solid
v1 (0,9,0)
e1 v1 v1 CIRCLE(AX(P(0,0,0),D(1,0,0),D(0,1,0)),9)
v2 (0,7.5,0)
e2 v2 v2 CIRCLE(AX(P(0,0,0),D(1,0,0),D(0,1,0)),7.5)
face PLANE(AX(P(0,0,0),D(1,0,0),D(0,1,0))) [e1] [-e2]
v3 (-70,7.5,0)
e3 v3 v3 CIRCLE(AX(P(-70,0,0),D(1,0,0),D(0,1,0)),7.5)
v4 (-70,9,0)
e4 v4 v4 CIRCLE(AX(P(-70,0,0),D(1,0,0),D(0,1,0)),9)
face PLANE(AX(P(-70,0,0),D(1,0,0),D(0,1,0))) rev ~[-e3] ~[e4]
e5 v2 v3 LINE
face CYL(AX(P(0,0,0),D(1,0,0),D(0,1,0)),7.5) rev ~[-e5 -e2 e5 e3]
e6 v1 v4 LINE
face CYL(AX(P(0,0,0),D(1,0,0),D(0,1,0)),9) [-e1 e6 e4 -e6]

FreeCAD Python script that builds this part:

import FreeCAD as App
import Part
import Sketcher

doc = App.newDocument("Part")
body = doc.addObject("PartDesign::Body", "Body")

# Sketch on YZ plane
sketch1 = body.newObject("Sketcher::SketchObject", "Sketch")
sketch1.AttachmentSupport = (doc.getObject("YZ_Plane"), [""])
sketch1.MapMode = "FlatFace"
sketch1.addGeometry([
    Part.Circle(App.Vector(0, 0, 0), App.Vector(0, 0, 1), 9),
    Part.Circle(App.Vector(0, 0, 0), App.Vector(0, 0, 1), 8),
], False)
sketch1.addConstraint([
    Sketcher.Constraint("Coincident", 0, 3, -1, 1),
    Sketcher.Constraint("Coincident", 1, 3, -1, 1),
    Sketcher.Constraint("Diameter", 0, 18.0),
    Sketcher.Constraint("Diameter", 1, 15.0),
])
pad1 = body.newObject("PartDesign::Pad", "Pad")
pad1.Profile = sketch1
pad1.Length = 70
pad1.Reversed = True

doc.recompute()
